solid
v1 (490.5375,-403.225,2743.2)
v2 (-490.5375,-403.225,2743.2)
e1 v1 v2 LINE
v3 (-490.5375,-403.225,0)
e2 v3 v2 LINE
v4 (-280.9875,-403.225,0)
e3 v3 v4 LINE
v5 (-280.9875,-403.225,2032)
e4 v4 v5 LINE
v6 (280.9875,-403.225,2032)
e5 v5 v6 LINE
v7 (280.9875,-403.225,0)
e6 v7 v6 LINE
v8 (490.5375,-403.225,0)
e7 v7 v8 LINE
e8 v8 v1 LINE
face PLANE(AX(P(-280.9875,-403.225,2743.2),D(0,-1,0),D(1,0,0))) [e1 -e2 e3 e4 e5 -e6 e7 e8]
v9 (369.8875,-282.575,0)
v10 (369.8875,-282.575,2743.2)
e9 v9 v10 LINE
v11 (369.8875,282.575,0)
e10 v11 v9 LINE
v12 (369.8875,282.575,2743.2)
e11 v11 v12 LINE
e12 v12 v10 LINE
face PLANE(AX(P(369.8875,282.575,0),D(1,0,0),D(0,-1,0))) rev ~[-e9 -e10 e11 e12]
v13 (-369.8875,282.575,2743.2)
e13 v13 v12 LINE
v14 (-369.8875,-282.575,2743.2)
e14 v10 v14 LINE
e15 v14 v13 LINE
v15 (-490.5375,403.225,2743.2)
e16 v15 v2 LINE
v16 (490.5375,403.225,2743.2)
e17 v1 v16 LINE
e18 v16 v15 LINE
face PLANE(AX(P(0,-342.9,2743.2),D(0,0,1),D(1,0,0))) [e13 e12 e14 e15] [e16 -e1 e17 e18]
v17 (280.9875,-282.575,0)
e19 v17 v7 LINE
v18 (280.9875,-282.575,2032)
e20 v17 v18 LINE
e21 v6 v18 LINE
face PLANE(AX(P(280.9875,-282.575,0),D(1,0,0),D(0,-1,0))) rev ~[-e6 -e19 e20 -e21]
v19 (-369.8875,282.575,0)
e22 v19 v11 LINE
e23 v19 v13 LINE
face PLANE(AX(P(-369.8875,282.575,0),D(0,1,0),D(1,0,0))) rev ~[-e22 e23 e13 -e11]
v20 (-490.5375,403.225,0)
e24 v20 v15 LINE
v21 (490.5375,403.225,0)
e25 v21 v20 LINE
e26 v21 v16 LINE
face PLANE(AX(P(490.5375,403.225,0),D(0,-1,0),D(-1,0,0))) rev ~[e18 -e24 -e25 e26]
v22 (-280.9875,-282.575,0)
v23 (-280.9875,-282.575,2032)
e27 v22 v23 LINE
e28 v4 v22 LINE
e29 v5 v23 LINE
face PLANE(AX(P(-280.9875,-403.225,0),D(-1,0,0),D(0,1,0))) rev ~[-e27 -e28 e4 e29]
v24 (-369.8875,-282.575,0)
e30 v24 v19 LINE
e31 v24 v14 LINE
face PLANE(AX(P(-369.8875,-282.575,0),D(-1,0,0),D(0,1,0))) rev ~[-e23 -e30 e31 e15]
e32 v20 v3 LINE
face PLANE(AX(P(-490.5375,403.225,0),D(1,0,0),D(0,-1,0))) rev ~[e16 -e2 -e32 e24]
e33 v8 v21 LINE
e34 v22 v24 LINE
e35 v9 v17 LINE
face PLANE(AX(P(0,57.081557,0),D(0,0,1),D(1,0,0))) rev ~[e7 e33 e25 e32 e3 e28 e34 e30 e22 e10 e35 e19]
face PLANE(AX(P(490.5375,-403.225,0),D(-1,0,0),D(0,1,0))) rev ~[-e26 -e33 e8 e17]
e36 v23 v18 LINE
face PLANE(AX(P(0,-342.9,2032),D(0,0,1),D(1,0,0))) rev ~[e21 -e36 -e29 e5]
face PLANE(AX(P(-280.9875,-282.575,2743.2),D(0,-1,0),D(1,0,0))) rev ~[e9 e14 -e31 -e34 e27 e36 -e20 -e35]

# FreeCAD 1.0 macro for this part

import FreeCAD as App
import Part
import Sketcher
from FreeCAD import Vector
Q = App.Units.Quantity


def add_polygon(sketch, points):
    """Adds a closed chain of lines whose ends are joined by coincident constraints."""
    first, n = sketch.GeometryCount, len(points)
    for a, b in zip(points, points[1:] + points[:1]):
        sketch.addGeometry(Part.LineSegment(App.Vector(*a, 0), App.Vector(*b, 0)), False)
    for i in range(n):
        sketch.addConstraint(Sketcher.Constraint("Coincident", first + i, 2, first + (i + 1) % n, 1))

doc = App.newDocument("Part")
params = doc.addObject("Spreadsheet::Sheet", "Params")
for row, (alias, value) in enumerate([
    ("sketch1_width", "3.5 in"),
    ("sketch1_width2", "8.25 in"),
    ("sketch1_height", "4.75 in"),
    ("sketch1_width3", "29.125 in"),
    ("pad1_length", "108 in"),
    ("sketch2_height", "4.75 in"),
    ("sketch2_width", "22.125 in"),
    ("pad2_length", "28 in"),
], start=1):
    params.set(f"A{row}", alias)
    params.set(f"B{row}", "=" + value)
    params.setAlias(f"B{row}", alias)

body = doc.addObject("PartDesign::Body", "Body")

# Sketch on XY plane
sketch1 = body.newObject("Sketcher::SketchObject", "Sketch")
sketch1.AttachmentSupport = (doc.getObject("XY_Plane"), [""])
sketch1.MapMode = "FlatFace"
add_polygon(sketch1, [(-281, -403), (-281, -283), (-370, -283), (-370, 283), (370, 283), (370, -283), (281, -283), (281, -403), (491, -403), (491, 403), (-491, 403), (-491, -403)])  # lines 0-11
sketch1.addConstraint([
    Sketcher.Constraint("Vertical", 0),
    Sketcher.Constraint("Horizontal", 1),
    Sketcher.Constraint("Vertical", 2),
    Sketcher.Constraint("Horizontal", 3),
    Sketcher.Constraint("Vertical", 4),
    Sketcher.Constraint("Horizontal", 5),
    Sketcher.Constraint("Vertical", 6),
    Sketcher.Constraint("Horizontal", 7),
    Sketcher.Constraint("Vertical", 8),
    Sketcher.Constraint("Horizontal", 9),
    Sketcher.Constraint("Vertical", 10),
    Sketcher.Constraint("Horizontal", 11),
    Sketcher.Constraint("Symmetric", 1, 2, 3, 2, -1, 1),
    Sketcher.Constraint("Symmetric", 7, 2, 9, 2, -1, 1),
    Sketcher.Constraint("Symmetric", 0, 2, 5, 2, -2),
    Sketcher.Constraint("Horizontal", 7, 2, 10, 2),
    Sketcher.Constraint("DistanceX", 1, 2, 1, 1, Q("3.5 in")),
    Sketcher.Constraint("DistanceY", 6, 2, 3, 2, Q("27 in")),
    Sketcher.Constraint("DistanceX", 7, 1, 7, 2, Q("8.25 in")),
    Sketcher.Constraint("DistanceY", 0, 1, 0, 2, Q("4.75 in")),
    Sketcher.Constraint("DistanceX", 3, 1, 3, 2, Q("29.125 in")),
])
sketch1.setExpression("Constraints[28]", "Params.sketch1_width")
sketch1.setExpression("Constraints[30]", "Params.sketch1_width2")
sketch1.setExpression("Constraints[31]", "Params.sketch1_height")
sketch1.setExpression("Constraints[32]", "Params.sketch1_width3")
pad1 = body.newObject("PartDesign::Pad", "Pad")
pad1.Profile = sketch1
pad1.setExpression("Length", "Params.pad1_length")

# Sketch on XY plane
sketch2 = body.newObject("Sketcher::SketchObject", "Sketch001")
sketch2.AttachmentSupport = (doc.getObject("XY_Plane"), [""])
sketch2.MapMode = "FlatFace"
sketch2.AttachmentOffset = App.Placement(Vector(0, 0, 108 * 25.4), App.Rotation())
add_polygon(sketch2, [(-281, -283), (-281, -403), (281, -403), (281, -283)])  # lines 0-3
sketch2.addConstraint([
    Sketcher.Constraint("Vertical", 0),
    Sketcher.Constraint("Horizontal", 1),
    Sketcher.Constraint("Vertical", 2),
    Sketcher.Constraint("Horizontal", 3),
    Sketcher.Constraint("DistanceY", 0, 2, 0, 1, Q("4.75 in")),
    Sketcher.Constraint("DistanceX", 1, 1, 1, 2, Q("22.125 in")),
    Sketcher.Constraint("DistanceX", 0, 2, -1, 1, Q("11.0625 in")),
    Sketcher.Constraint("DistanceY", 0, 2, -1, 1, Q("15.875 in")),
])
sketch2.setExpression("Constraints[8]", "Params.sketch2_height")
sketch2.setExpression("Constraints[9]", "Params.sketch2_width")
pad2 = body.newObject("PartDesign::Pad", "Pad001")
pad2.Profile = sketch2
pad2.setExpression("Length", "Params.pad2_length")
pad2.Reversed = True

doc.recompute()
